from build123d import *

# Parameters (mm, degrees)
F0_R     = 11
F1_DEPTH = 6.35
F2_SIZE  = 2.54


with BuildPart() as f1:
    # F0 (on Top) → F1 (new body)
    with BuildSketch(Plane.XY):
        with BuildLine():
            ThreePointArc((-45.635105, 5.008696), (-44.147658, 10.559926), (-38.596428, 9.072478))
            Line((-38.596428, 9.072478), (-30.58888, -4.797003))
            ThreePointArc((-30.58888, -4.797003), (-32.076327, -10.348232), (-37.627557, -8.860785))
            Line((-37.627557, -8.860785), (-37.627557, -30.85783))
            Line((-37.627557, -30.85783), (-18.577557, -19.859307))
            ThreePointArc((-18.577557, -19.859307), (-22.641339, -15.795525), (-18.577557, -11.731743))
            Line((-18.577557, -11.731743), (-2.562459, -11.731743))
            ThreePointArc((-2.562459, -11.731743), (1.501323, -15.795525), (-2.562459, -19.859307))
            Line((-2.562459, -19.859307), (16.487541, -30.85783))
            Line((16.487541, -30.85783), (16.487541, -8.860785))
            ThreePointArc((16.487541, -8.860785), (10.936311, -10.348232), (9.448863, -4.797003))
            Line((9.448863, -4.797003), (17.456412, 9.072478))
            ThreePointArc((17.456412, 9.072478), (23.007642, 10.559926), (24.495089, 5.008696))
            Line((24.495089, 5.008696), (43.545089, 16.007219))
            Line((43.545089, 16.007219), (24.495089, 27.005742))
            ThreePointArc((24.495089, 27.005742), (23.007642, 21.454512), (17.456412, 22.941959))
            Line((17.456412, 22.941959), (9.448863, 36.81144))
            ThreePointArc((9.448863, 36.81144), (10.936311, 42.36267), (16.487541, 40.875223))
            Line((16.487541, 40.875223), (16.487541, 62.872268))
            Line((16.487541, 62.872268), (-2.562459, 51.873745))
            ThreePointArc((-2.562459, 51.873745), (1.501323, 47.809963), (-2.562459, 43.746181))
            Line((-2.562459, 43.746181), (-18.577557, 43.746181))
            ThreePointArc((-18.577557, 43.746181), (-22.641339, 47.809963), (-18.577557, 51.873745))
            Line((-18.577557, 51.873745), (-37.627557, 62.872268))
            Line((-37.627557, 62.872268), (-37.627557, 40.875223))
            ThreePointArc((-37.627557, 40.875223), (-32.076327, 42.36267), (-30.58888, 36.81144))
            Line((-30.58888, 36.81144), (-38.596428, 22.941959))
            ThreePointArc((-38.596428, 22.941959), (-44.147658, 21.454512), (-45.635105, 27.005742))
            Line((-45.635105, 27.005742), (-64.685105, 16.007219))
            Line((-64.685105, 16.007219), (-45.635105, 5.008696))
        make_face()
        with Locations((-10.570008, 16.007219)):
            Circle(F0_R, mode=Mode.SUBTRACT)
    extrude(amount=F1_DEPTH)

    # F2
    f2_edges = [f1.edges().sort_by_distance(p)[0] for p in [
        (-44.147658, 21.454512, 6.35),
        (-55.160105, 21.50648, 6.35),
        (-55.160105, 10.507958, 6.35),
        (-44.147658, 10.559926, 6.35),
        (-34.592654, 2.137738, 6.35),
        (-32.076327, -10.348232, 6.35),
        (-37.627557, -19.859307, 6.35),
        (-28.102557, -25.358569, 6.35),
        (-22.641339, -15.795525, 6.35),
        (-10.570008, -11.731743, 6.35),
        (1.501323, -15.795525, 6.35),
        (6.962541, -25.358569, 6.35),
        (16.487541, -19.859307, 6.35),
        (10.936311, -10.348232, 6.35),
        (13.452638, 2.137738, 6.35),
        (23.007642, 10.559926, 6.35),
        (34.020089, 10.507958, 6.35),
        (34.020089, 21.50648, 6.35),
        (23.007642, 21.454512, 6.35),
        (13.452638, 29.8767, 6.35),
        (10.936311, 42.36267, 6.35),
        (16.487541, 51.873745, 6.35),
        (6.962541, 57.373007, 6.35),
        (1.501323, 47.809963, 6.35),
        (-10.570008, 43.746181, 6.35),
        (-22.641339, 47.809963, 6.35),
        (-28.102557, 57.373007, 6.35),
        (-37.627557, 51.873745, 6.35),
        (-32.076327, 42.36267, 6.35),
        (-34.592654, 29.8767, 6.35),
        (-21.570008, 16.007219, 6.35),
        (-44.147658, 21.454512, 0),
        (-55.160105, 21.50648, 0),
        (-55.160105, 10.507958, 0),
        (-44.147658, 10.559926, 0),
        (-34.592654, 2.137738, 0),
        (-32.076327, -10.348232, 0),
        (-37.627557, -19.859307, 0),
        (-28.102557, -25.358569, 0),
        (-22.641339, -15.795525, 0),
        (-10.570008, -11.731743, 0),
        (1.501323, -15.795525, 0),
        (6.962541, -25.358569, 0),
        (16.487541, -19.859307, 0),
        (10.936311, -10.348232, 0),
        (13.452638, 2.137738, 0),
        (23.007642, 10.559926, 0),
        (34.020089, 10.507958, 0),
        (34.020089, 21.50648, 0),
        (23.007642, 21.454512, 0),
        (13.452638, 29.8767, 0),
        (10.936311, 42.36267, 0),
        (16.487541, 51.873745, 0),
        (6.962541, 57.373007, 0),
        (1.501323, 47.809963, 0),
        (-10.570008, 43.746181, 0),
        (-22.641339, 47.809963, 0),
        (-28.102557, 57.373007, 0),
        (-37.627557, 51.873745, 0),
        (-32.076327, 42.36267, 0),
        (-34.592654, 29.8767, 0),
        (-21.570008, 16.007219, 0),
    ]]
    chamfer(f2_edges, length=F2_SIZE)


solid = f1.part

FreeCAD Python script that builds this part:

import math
import FreeCAD as App
import Part
import Sketcher
from FreeCAD import Vector
Q = App.Units.Quantity


def edges_at(feature, points):
    """Names of the edges that pass closest to the given points."""
    edges = feature.Shape.Edges
    near = lambda p: min(range(len(edges)), key=lambda i: edges[i].distToShape(Part.Vertex(*p))[0])
    return sorted({f"Edge{near(p) + 1}" for p in points})

doc = App.newDocument("Part")
body = doc.addObject("PartDesign::Body", "Body")

# Sketch on XY plane
sketch1 = body.newObject("Sketcher::SketchObject", "Sketch")
sketch1.AttachmentSupport = (doc.getObject("XY_Plane"), [""])
sketch1.MapMode = "FlatFace"
sketch1.addGeometry([
    Part.ArcOfCircle(Part.Circle(Vector(-42.1, 7, 0), Vector(0, 0, 1), 4.1), math.radians(30), math.radians(210)),  # 0
    Part.LineSegment(Vector(-38.6, 9.1, 0), Vector(-30.6, -4.8, 0)),  # 1
    Part.ArcOfCircle(Part.Circle(Vector(-34.1, -6.8, 0), Vector(0, 0, 1), 4.1), math.radians(-150), math.radians(30)),  # 2
    Part.LineSegment(Vector(-37.6, -8.9, 0), Vector(-37.6, -30.9, 0)),  # 3
    Part.LineSegment(Vector(-37.6, -30.9, 0), Vector(-18.6, -19.9, 0)),  # 4
    Part.ArcOfCircle(Part.Circle(Vector(-18.6, -15.8, 0), Vector(0, 0, 1), 4.1), math.radians(90), math.radians(270)),  # 5
    Part.LineSegment(Vector(-18.6, -11.7, 0), Vector(-2.6, -11.7, 0)),  # 6
    Part.ArcOfCircle(Part.Circle(Vector(-2.6, -15.8, 0), Vector(0, 0, 1), 4.1), math.radians(-90), math.radians(90)),  # 7
    Part.LineSegment(Vector(-2.6, -19.9, 0), Vector(16.5, -30.9, 0)),  # 8
    Part.LineSegment(Vector(16.5, -30.9, 0), Vector(16.5, -8.9, 0)),  # 9
    Part.ArcOfCircle(Part.Circle(Vector(13, -6.8, 0), Vector(0, 0, 1), 4.1), math.radians(150), math.radians(330)),  # 10
    Part.LineSegment(Vector(9.4, -4.8, 0), Vector(17.5, 9.1, 0)),  # 11
    Part.ArcOfCircle(Part.Circle(Vector(21, 7, 0), Vector(0, 0, 1), 4.1), math.radians(-30), math.radians(150)),  # 12
    Part.LineSegment(Vector(24.5, 5, 0), Vector(43.5, 16, 0)),  # 13
    Part.LineSegment(Vector(43.5, 16, 0), Vector(24.5, 27, 0)),  # 14
    Part.ArcOfCircle(Part.Circle(Vector(21, 25, 0), Vector(0, 0, 1), 4.1), math.radians(-150), math.radians(30)),  # 15
    Part.LineSegment(Vector(17.5, 22.9, 0), Vector(9.4, 36.8, 0)),  # 16
    Part.ArcOfCircle(Part.Circle(Vector(13, 38.8, 0), Vector(0, 0, 1), 4.1), math.radians(30), math.radians(210)),  # 17
    Part.LineSegment(Vector(16.5, 40.9, 0), Vector(16.5, 62.9, 0)),  # 18
    Part.LineSegment(Vector(16.5, 62.9, 0), Vector(-2.6, 51.9, 0)),  # 19
    Part.ArcOfCircle(Part.Circle(Vector(-2.6, 47.8, 0), Vector(0, 0, 1), 4.1), math.radians(-90), math.radians(90)),  # 20
    Part.LineSegment(Vector(-2.6, 43.7, 0), Vector(-18.6, 43.7, 0)),  # 21
    Part.ArcOfCircle(Part.Circle(Vector(-18.6, 47.8, 0), Vector(0, 0, 1), 4.1), math.radians(90), math.radians(270)),  # 22
    Part.LineSegment(Vector(-18.6, 51.9, 0), Vector(-37.6, 62.9, 0)),  # 23
    Part.LineSegment(Vector(-37.6, 62.9, 0), Vector(-37.6, 40.9, 0)),  # 24
    Part.ArcOfCircle(Part.Circle(Vector(-34.1, 38.8, 0), Vector(0, 0, 1), 4.1), math.radians(-30), math.radians(150)),  # 25
    Part.LineSegment(Vector(-30.6, 36.8, 0), Vector(-38.6, 22.9, 0)),  # 26
    Part.ArcOfCircle(Part.Circle(Vector(-42.1, 25, 0), Vector(0, 0, 1), 4.1), math.radians(150), math.radians(330)),  # 27
    Part.LineSegment(Vector(-45.6, 27, 0), Vector(-64.7, 16, 0)),  # 28
    Part.LineSegment(Vector(-64.7, 16, 0), Vector(-45.6, 5, 0)),  # 29
    Part.Circle(Vector(-10.6, 16, 0), Vector(0, 0, 1), 11),  # 30
], False)
sketch1.addConstraint([
    Sketcher.Constraint("Tangent", 0, 1, 1, 1),
    Sketcher.Constraint("Tangent", 1, 2, 2, 2),
    Sketcher.Constraint("Coincident", 2, 1, 3, 1),
    Sketcher.Constraint("Coincident", 3, 2, 4, 1),
    Sketcher.Constraint("Coincident", 4, 2, 5, 2),
    Sketcher.Constraint("Tangent", 5, 1, 6, 1),
    Sketcher.Constraint("Tangent", 6, 2, 7, 2),
    Sketcher.Constraint("Coincident", 7, 1, 8, 1),
    Sketcher.Constraint("Coincident", 8, 2, 9, 1),
    Sketcher.Constraint("Coincident", 9, 2, 10, 2),
    Sketcher.Constraint("Tangent", 10, 1, 11, 1),
    Sketcher.Constraint("Tangent", 11, 2, 12, 2),
    Sketcher.Constraint("Coincident", 12, 1, 13, 1),
    Sketcher.Constraint("Coincident", 13, 2, 14, 1),
    Sketcher.Constraint("Coincident", 14, 2, 15, 2),
    Sketcher.Constraint("Tangent", 15, 1, 16, 1),
    Sketcher.Constraint("Tangent", 16, 2, 17, 2),
    Sketcher.Constraint("Coincident", 17, 1, 18, 1),
    Sketcher.Constraint("Coincident", 18, 2, 19, 1),
    Sketcher.Constraint("Coincident", 19, 2, 20, 2),
    Sketcher.Constraint("Tangent", 20, 1, 21, 1),
    Sketcher.Constraint("Tangent", 21, 2, 22, 2),
    Sketcher.Constraint("Coincident", 22, 1, 23, 1),
    Sketcher.Constraint("Coincident", 23, 2, 24, 1),
    Sketcher.Constraint("Coincident", 24, 2, 25, 2),
    Sketcher.Constraint("Tangent", 25, 1, 26, 1),
    Sketcher.Constraint("Tangent", 26, 2, 27, 2),
    Sketcher.Constraint("Coincident", 27, 1, 28, 1),
    Sketcher.Constraint("Coincident", 28, 2, 29, 1),
    Sketcher.Constraint("Coincident", 29, 2, 0, 2),
    Sketcher.Constraint("Vertical", 3),
    Sketcher.Constraint("Horizontal", 6),
    Sketcher.Constraint("Vertical", 9),
    Sketcher.Constraint("Vertical", 18),
    Sketcher.Constraint("Horizontal", 21),
    Sketcher.Constraint("Vertical", 24),
    Sketcher.Constraint("Equal", 0, 2),
    Sketcher.Constraint("Equal", 2, 5),
    Sketcher.Constraint("Equal", 5, 7),
    Sketcher.Constraint("Equal", 7, 10),
    Sketcher.Constraint("Equal", 10, 12),
    Sketcher.Constraint("Equal", 12, 15),
    Sketcher.Constraint("Equal", 15, 17),
    Sketcher.Constraint("Equal", 17, 20),
    Sketcher.Constraint("Equal", 20, 22),
    Sketcher.Constraint("Equal", 22, 25),
    Sketcher.Constraint("Equal", 25, 27),
    Sketcher.Constraint("Perpendicular", 1, 4),
    Sketcher.Constraint("Perpendicular", 8, 11),
    Sketcher.Constraint("Parallel", 4, 13),
    Sketcher.Constraint("Perpendicular", 11, 14),
    Sketcher.Constraint("Perpendicular", 13, 16),
    Sketcher.Constraint("Perpendicular", 16, 19),
    Sketcher.Constraint("Parallel", 14, 23),
    Sketcher.Constraint("Perpendicular", 23, 26),
    Sketcher.Constraint("Parallel", 19, 28),
    Sketcher.Constraint("Perpendicular", 26, 29),
    Sketcher.Constraint("Horizontal", 2, 3, 10, 3),
    Sketcher.Constraint("Horizontal", 0, 3, 12, 3),
    Sketcher.Constraint("Horizontal", 17, 3, 25, 3),
    Sketcher.Constraint("Horizontal", 15, 3, 27, 3),
    Sketcher.Constraint("Horizontal", 3, 2, 8, 2),
    Sketcher.Constraint("Horizontal", 2, 1, 9, 2),
    Sketcher.Constraint("Horizontal", 1, 2, 10, 1),
    Sketcher.Constraint("Horizontal", 30, 3, 13, 2),
    Sketcher.Constraint("Horizontal", 18, 2, 23, 2),
    Sketcher.Constraint("Horizontal", 17, 1, 24, 2),
    Sketcher.Constraint("Horizontal", 14, 2, 27, 1),
    Sketcher.Constraint("Horizontal", 13, 2, 28, 2),
    Sketcher.Constraint("Horizontal", 12, 1, 29, 2),
    Sketcher.Constraint("Vertical", 12, 3, 15, 3),
    Sketcher.Constraint("Vertical", 10, 3, 17, 3),
    Sketcher.Constraint("Vertical", 7, 3, 20, 3),
    Sketcher.Constraint("Vertical", 5, 3, 22, 3),
    Sketcher.Constraint("Vertical", 22, 3, 4, 2),
    Sketcher.Constraint("Vertical", 6, 2, 7, 1),
    Sketcher.Constraint("Vertical", 12, 1, 14, 2),
    Sketcher.Constraint("Vertical", 9, 2, 17, 1),
    Sketcher.Constraint("Vertical", 7, 1, 19, 2),
    Sketcher.Constraint("Equal", 9, 18),
    Sketcher.Constraint("Equal", 8, 13),
    Sketcher.Constraint("Angle", 1, Q("-60.000002 deg")),
    Sketcher.Constraint("Diameter", 30, Q("22 mm")),
    Sketcher.Constraint("DistanceX", 2, 1, 5, 3, Q("0.75 in")),
    Sketcher.Constraint("Radius", 5, Q("4.063782 mm")),
    Sketcher.Constraint("DistanceX", 5, 3, -1, 1, Q("0.7313999 in")),
    Sketcher.Constraint("DistanceY", 10, 1, 12, 1, Q("9.805699 mm")),
    Sketcher.Constraint("DistanceX", 23, 2, 19, 2, Q("35.065098 mm")),
    Sketcher.Constraint("DistanceY", 3, 2, 3, 1, Q("21.997045 mm")),
    Sketcher.Constraint("DistanceX", 2, 3, -1, 1, Q("34.108219 mm")),
    Sketcher.Constraint("DistanceX", -1, 1, 12, 3, Q("20.975751 mm")),
    Sketcher.Constraint("DistanceY", -1, 1, 15, 3, Q("24.973851 mm")),
    Sketcher.Constraint("DistanceX", 30, 3, 17, 3, Q("23.53821 mm")),
])
pad1 = body.newObject("PartDesign::Pad", "Pad")
pad1.Profile = sketch1
pad1.Length = Q("0.25 in")
doc.recompute()

chamfer = body.newObject("PartDesign::Chamfer", "Chamfer")
chamfer.Base = (pad1, edges_at(pad1, [
    (-44.148, 21.455, 6.35),
    (-55.16, 21.506, 6.35),
    (-55.16, 10.508, 6.35),
    (-44.148, 10.56, 6.35),
    (-34.593, 2.138, 6.35),
    (-32.076, -10.348, 6.35),
    (-37.628, -19.859, 6.35),
    (-28.103, -25.359, 6.35),
    (-22.641, -15.796, 6.35),
    (-10.57, -11.732, 6.35),
    (1.501, -15.796, 6.35),
    (6.963, -25.359, 6.35),
    (16.488, -19.859, 6.35),
    (10.936, -10.348, 6.35),
    (13.453, 2.138, 6.35),
    (23.008, 10.56, 6.35),
    (34.02, 10.508, 6.35),
    (34.02, 21.506, 6.35),
    (23.008, 21.455, 6.35),
    (13.453, 29.877, 6.35),
    (10.936, 42.363, 6.35),
    (16.488, 51.874, 6.35),
    (6.963, 57.373, 6.35),
    (1.501, 47.81, 6.35),
    (-10.57, 43.746, 6.35),
    (-22.641, 47.81, 6.35),
    (-28.103, 57.373, 6.35),
    (-37.628, 51.874, 6.35),
    (-32.076, 42.363, 6.35),
    (-34.593, 29.877, 6.35),
    (-21.57, 16.007, 6.35),
    (-44.148, 21.455, 0),
    (-55.16, 21.506, 0),
    (-55.16, 10.508, 0),
    (-44.148, 10.56, 0),
    (-34.593, 2.138, 0),
    (-32.076, -10.348, 0),
    (-37.628, -19.859, 0),
    (-28.103, -25.359, 0),
    (-22.641, -15.796, 0),
    (-10.57, -11.732, 0),
    (1.501, -15.796, 0),
    (6.963, -25.359, 0),
    (16.488, -19.859, 0),
    (10.936, -10.348, 0),
    (13.453, 2.138, 0),
    (23.008, 10.56, 0),
    (34.02, 10.508, 0),
    (34.02, 21.506, 0),
    (23.008, 21.455, 0),
    (13.453, 29.877, 0),
    (10.936, 42.363, 0),
    (16.488, 51.874, 0),
    (6.963, 57.373, 0),
    (1.501, 47.81, 0),
    (-10.57, 43.746, 0),
    (-22.641, 47.81, 0),
    (-28.103, 57.373, 0),
    (-37.628, 51.874, 0),
    (-32.076, 42.363, 0),
    (-34.593, 29.877, 0),
    (-21.57, 16.007, 0),
]))
chamfer.Size = Q("0.1 in")

doc.recompute()
